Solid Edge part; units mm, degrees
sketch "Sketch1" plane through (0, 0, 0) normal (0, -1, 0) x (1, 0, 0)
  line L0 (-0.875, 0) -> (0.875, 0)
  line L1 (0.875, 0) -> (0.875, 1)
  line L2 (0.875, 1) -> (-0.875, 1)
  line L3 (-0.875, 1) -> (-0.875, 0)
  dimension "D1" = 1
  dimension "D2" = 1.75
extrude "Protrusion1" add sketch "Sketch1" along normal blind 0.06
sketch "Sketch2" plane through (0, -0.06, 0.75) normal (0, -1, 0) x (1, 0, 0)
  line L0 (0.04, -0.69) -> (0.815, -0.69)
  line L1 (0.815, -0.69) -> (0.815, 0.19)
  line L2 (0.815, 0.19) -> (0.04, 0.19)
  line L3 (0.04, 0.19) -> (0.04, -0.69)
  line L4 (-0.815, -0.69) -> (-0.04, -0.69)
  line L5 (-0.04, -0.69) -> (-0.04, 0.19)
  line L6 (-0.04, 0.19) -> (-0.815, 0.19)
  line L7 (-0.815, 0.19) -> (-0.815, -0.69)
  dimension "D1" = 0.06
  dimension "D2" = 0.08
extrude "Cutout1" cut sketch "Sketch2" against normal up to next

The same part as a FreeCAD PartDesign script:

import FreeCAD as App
import Part
import Sketcher

V = App.Vector
Q = App.Units.Quantity

doc = App.newDocument("Part")
body = doc.addObject("PartDesign::Body", "Body")

# Sketch on XZ plane
sketch1 = body.newObject("Sketcher::SketchObject", "Sketch")
sketch1.AttachmentSupport = (doc.getObject("XZ_Plane"), [""])
sketch1.MapMode = "FlatFace"
sketch1.addGeometry(Part.LineSegment(V(-0.9, 1, 0), V(-0.9, 0, 0)), False)
sketch1.addGeometry(Part.LineSegment(V(-0.9, 0, 0), V(0.9, 0, 0)), False)
sketch1.addGeometry(Part.LineSegment(V(0.9, 0, 0), V(0.9, 1, 0)), False)
sketch1.addGeometry(Part.LineSegment(V(0.9, 1, 0), V(-0.9, 1, 0)), False)
sketch1.addConstraint(Sketcher.Constraint("Coincident", 0, 2, 1, 1))
sketch1.addConstraint(Sketcher.Constraint("Coincident", 1, 2, 2, 1))
sketch1.addConstraint(Sketcher.Constraint("Coincident", 2, 2, 3, 1))
sketch1.addConstraint(Sketcher.Constraint("Coincident", 3, 2, 0, 1))
sketch1.addConstraint(Sketcher.Constraint("Vertical", 0))
sketch1.addConstraint(Sketcher.Constraint("Horizontal", 1))
sketch1.addConstraint(Sketcher.Constraint("Vertical", 2))
sketch1.addConstraint(Sketcher.Constraint("Horizontal", 3))
sketch1.addConstraint(Sketcher.Constraint("Symmetric", 0, 2, 1, 2, -1, 1))
sketch1.addConstraint(Sketcher.Constraint("DistanceY", 0, 2, 0, 1, Q("1 mm")))
sketch1.addConstraint(Sketcher.Constraint("DistanceX", 0, 2, -1, 1, Q("0.875 mm")))
pad1 = body.newObject("PartDesign::Pad", "Pad")
pad1.Profile = sketch1
pad1.Length = 0.06

# Sketch on XZ plane
sketch2 = body.newObject("Sketcher::SketchObject", "Sketch001")
sketch2.AttachmentSupport = (doc.getObject("XZ_Plane"), [""])
sketch2.MapMode = "FlatFace"
sketch2.AttachmentOffset = App.Placement(V(0, 0, 0.06), App.Rotation())
sketch2.addGeometry(Part.LineSegment(V(0.04, 0.94, 0), V(0.04, 0.06, 0)), False)
sketch2.addGeometry(Part.LineSegment(V(0.04, 0.06, 0), V(0.815, 0.06, 0)), False)
sketch2.addGeometry(Part.LineSegment(V(0.815, 0.06, 0), V(0.815, 0.94, 0)), False)
sketch2.addGeometry(Part.LineSegment(V(0.815, 0.94, 0), V(0.04, 0.94, 0)), False)
sketch2.addGeometry(Part.LineSegment(V(-0.815, 0.94, 0), V(-0.815, 0.06, 0)), False)
sketch2.addGeometry(Part.LineSegment(V(-0.815, 0.06, 0), V(-0.04, 0.06, 0)), False)
sketch2.addGeometry(Part.LineSegment(V(-0.04, 0.06, 0), V(-0.04, 0.94, 0)), False)
sketch2.addGeometry(Part.LineSegment(V(-0.04, 0.94, 0), V(-0.815, 0.94, 0)), False)
sketch2.addConstraint(Sketcher.Constraint("Coincident", 0, 2, 1, 1))
sketch2.addConstraint(Sketcher.Constraint("Coincident", 1, 2, 2, 1))
sketch2.addConstraint(Sketcher.Constraint("Coincident", 2, 2, 3, 1))
sketch2.addConstraint(Sketcher.Constraint("Coincident", 3, 2, 0, 1))
sketch2.addConstraint(Sketcher.Constraint("Coincident", 4, 2, 5, 1))
sketch2.addConstraint(Sketcher.Constraint("Coincident", 5, 2, 6, 1))
sketch2.addConstraint(Sketcher.Constraint("Coincident", 6, 2, 7, 1))
sketch2.addConstraint(Sketcher.Constraint("Coincident", 7, 2, 4, 1))
sketch2.addConstraint(Sketcher.Constraint("Vertical", 0))
sketch2.addConstraint(Sketcher.Constraint("Horizontal", 1))
sketch2.addConstraint(Sketcher.Constraint("Vertical", 2))
sketch2.addConstraint(Sketcher.Constraint("Horizontal", 3))
sketch2.addConstraint(Sketcher.Constraint("Vertical", 4))
sketch2.addConstraint(Sketcher.Constraint("Horizontal", 5))
sketch2.addConstraint(Sketcher.Constraint("Vertical", 6))
sketch2.addConstraint(Sketcher.Constraint("Horizontal", 7))
sketch2.addConstraint(Sketcher.Constraint("Symmetric", 1, 2, 4, 2, -2))
sketch2.addConstraint(Sketcher.Constraint("Symmetric", 3, 2, 6, 2, -2))
sketch2.addConstraint(Sketcher.Constraint("DistanceX", -1, 1, 0, 2, Q("0.04 mm")))
sketch2.addConstraint(Sketcher.Constraint("DistanceX", -1, 1, 1, 2, Q("0.815 mm")))
sketch2.addConstraint(Sketcher.Constraint("DistanceY", 0, 2, 0, 1, Q("0.88 mm")))
sketch2.addConstraint(Sketcher.Constraint("DistanceY", -1, 1, 0, 2, Q("0.06 mm")))
pocket1 = body.newObject("PartDesign::Pocket", "Pocket")
pocket1.Profile = sketch2
pocket1.Type = "UpToFirst"

doc.recompute()
